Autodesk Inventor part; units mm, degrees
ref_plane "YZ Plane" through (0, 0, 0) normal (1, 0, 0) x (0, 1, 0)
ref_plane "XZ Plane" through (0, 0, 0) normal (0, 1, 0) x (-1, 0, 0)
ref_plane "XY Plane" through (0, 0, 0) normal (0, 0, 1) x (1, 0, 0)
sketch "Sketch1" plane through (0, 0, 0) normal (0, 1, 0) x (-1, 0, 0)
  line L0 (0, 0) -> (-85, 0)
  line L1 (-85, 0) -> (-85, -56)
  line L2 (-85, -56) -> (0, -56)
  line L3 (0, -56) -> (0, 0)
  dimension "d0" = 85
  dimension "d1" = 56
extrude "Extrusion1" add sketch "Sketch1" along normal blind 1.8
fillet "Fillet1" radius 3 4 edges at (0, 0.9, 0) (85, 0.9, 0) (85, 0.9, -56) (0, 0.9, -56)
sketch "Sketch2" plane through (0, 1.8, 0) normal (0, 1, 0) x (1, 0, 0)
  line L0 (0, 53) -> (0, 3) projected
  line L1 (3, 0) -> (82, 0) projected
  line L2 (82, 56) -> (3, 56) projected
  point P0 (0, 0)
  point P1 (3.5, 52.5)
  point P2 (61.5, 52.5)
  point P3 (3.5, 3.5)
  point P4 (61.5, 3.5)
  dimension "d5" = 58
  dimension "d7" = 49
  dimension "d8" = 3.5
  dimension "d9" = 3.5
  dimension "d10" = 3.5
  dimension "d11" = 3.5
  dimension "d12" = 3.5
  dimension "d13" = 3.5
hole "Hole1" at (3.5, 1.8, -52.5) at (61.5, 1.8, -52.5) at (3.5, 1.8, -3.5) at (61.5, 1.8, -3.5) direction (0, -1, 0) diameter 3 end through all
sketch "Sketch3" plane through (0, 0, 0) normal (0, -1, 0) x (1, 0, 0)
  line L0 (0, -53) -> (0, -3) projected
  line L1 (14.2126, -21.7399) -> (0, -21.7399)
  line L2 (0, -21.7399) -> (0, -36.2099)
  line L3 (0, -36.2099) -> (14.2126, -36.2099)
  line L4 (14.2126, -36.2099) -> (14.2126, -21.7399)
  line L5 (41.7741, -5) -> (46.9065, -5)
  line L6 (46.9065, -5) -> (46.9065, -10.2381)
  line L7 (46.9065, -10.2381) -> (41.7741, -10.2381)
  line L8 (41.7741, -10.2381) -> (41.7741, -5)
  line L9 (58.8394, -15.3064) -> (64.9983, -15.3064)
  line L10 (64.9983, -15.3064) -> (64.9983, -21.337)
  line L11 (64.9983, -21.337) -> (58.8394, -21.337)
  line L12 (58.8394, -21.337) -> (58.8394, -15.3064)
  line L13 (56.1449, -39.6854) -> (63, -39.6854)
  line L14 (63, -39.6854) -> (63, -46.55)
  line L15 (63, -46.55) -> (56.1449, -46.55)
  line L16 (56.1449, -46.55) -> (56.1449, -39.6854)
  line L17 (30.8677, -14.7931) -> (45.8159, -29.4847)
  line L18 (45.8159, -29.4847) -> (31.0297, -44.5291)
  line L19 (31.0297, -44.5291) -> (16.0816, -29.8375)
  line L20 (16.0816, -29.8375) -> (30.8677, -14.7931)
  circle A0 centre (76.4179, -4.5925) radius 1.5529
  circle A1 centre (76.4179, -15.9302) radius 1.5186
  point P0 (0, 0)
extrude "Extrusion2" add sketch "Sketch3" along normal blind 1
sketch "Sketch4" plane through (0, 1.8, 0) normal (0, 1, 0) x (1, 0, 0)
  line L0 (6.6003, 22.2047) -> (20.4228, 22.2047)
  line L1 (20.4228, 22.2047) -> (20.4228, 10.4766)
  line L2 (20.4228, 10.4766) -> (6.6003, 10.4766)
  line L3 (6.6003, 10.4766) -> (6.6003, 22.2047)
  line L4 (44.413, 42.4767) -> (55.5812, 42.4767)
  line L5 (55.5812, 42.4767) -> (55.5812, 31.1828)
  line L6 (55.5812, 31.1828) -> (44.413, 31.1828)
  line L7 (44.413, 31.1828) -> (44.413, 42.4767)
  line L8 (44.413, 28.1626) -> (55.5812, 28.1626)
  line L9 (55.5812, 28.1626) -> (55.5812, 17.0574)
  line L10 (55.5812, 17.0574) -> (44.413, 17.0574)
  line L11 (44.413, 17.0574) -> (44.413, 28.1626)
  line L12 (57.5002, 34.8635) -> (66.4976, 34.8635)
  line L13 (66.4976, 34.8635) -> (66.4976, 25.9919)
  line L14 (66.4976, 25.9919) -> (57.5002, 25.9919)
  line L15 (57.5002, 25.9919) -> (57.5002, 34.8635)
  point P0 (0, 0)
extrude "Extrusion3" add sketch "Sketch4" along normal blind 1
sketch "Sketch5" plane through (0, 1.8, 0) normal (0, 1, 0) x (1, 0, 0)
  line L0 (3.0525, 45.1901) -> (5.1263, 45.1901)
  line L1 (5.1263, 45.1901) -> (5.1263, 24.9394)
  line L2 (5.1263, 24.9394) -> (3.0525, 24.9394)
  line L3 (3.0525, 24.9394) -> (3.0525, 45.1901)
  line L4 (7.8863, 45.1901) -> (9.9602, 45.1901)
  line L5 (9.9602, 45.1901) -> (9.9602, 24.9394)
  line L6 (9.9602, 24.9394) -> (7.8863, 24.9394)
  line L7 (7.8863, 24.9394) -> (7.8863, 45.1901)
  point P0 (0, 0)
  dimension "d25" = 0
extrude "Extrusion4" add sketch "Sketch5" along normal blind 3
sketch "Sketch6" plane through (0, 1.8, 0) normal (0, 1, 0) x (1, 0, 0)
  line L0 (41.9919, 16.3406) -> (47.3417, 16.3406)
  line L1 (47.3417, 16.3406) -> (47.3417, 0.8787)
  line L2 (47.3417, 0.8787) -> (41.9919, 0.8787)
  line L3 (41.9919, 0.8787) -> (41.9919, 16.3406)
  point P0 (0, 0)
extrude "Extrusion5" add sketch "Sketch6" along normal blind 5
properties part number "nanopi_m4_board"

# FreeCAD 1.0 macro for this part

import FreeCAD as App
import Part
import Sketcher

V = App.Vector


def edges_at(feature, points):
    """Names of the edges that pass closest to the given points."""
    edges = feature.Shape.Edges
    near = lambda p: min(range(len(edges)), key=lambda i: edges[i].distToShape(Part.Vertex(*p))[0])
    return sorted({f"Edge{near(p) + 1}" for p in points})

doc = App.newDocument("Part")
params = doc.addObject("Spreadsheet::Sheet", "Params")
for row, (alias, value) in enumerate([
    ("sketch1_width", "85 mm"),
    ("sketch1_height", "56 mm"),
    ("pad1_length", "1.8 mm"),
    ("fillet_radius", "3 mm"),
    ("sketch2_diameter", "3 mm"),
    ("hole_diameter", "3 mm"),
    ("sketch3_height", "14.47 mm"),
    ("pad2_length", "1 mm"),
    ("pad3_length", "1 mm"),
    ("pad4_length", "3 mm"),
    ("pad5_length", "5 mm"),
], start=1):
    params.set(f"A{row}", alias)
    params.set(f"B{row}", "=" + value)
    params.setAlias(f"B{row}", alias)

body = doc.addObject("PartDesign::Body", "Body")

# Sketch on XZ plane
sketch1 = doc.addObject("Sketcher::SketchObject", "Sketch")
body.addObject(sketch1)
sketch1.AttachmentSupport = (doc.XZ_Plane, [""])
sketch1.MapMode = "FlatFace"
sketch1.addGeometry(Part.LineSegment(V(0, -56, 0), V(0, 0, 0)), False)
sketch1.addGeometry(Part.LineSegment(V(0, 0, 0), V(85, 0, 0)), False)
sketch1.addGeometry(Part.LineSegment(V(85, 0, 0), V(85, -56, 0)), False)
sketch1.addGeometry(Part.LineSegment(V(85, -56, 0), V(0, -56, 0)), False)
sketch1.addConstraint(Sketcher.Constraint("Coincident", 0, 2, 1, 1))
sketch1.addConstraint(Sketcher.Constraint("Coincident", 1, 2, 2, 1))
sketch1.addConstraint(Sketcher.Constraint("Coincident", 2, 2, 3, 1))
sketch1.addConstraint(Sketcher.Constraint("Coincident", 3, 2, 0, 1))
sketch1.addConstraint(Sketcher.Constraint("Vertical", 0))
sketch1.addConstraint(Sketcher.Constraint("Horizontal", 1))
sketch1.addConstraint(Sketcher.Constraint("Vertical", 2))
sketch1.addConstraint(Sketcher.Constraint("Horizontal", 3))
sketch1.addConstraint(Sketcher.Constraint("Coincident", 0, 2, -1, 1))
sketch1.addConstraint(Sketcher.Constraint("DistanceX", 1, 1, 1, 2, 85.0))
sketch1.addConstraint(Sketcher.Constraint("DistanceY", 0, 1, 0, 2, 56.0))
sketch1.setExpression("Constraints[9]", "Params.sketch1_width")
sketch1.setExpression("Constraints[10]", "Params.sketch1_height")
pad1 = doc.addObject("PartDesign::Pad", "Pad")
body.addObject(pad1)
pad1.Profile = sketch1
pad1.setExpression("Length", "Params.pad1_length")
pad1.Reversed = True
doc.recompute()

fillet = doc.addObject("PartDesign::Fillet", "Fillet")
body.addObject(fillet)
fillet.Base = (pad1, edges_at(pad1, [
    (0, 0.9, 0),
    (85, 0.9, 0),
    (85, 0.9, -56),
    (0, 0.9, -56),
]))
fillet.setExpression("Radius", "Params.fillet_radius")

# Sketch on XZ plane
sketch2 = doc.addObject("Sketcher::SketchObject", "Sketch001")
body.addObject(sketch2)
sketch2.AttachmentSupport = (doc.XZ_Plane, [""])
sketch2.MapMode = "FlatFace"
sketch2.AttachmentOffset = App.Placement(V(0, 0, -1.8), App.Rotation())
sketch2.addGeometry(Part.Circle(V(3.5, -52.5, 0), V(0, 0, 1), 1.5), False)
sketch2.addGeometry(Part.Circle(V(61.5, -52.5, 0), V(0, 0, 1), 1.5), False)
sketch2.addGeometry(Part.Circle(V(3.5, -3.5, 0), V(0, 0, 1), 1.5), False)
sketch2.addGeometry(Part.Circle(V(61.5, -3.5, 0), V(0, 0, 1), 1.5), False)
sketch2.addConstraint(Sketcher.Constraint("Equal", 0, 1))
sketch2.addConstraint(Sketcher.Constraint("Equal", 1, 2))
sketch2.addConstraint(Sketcher.Constraint("Equal", 2, 3))
sketch2.addConstraint(Sketcher.Constraint("Horizontal", 0, 3, 1, 3))
sketch2.addConstraint(Sketcher.Constraint("Horizontal", 2, 3, 3, 3))
sketch2.addConstraint(Sketcher.Constraint("Vertical", 0, 3, 2, 3))
sketch2.addConstraint(Sketcher.Constraint("Vertical", 1, 3, 3, 3))
sketch2.addConstraint(Sketcher.Constraint("Diameter", 0, 3.0))
sketch2.addConstraint(Sketcher.Constraint("DistanceX", 0, 3, 1, 3, 58.0))
sketch2.addConstraint(Sketcher.Constraint("DistanceY", 0, 3, 2, 3, 49.0))
sketch2.addConstraint(Sketcher.Constraint("DistanceX", -1, 1, 0, 3, 3.5))
sketch2.addConstraint(Sketcher.Constraint("DistanceY", 0, 3, -1, 1, 52.5))
sketch2.setExpression("Constraints[7]", "Params.sketch2_diameter")
doc.recompute()
hole = doc.addObject("PartDesign::Hole", "Hole")
body.addObject(hole)
hole.Profile = sketch2
hole.ThreadType = "None"
hole.setExpression("Diameter", "Params.hole_diameter")
hole.DepthType = "ThroughAll"
hole.Reversed = True

# Sketch on XZ plane
sketch3 = doc.addObject("Sketcher::SketchObject", "Sketch002")
body.addObject(sketch3)
sketch3.AttachmentSupport = (doc.XZ_Plane, [""])
sketch3.MapMode = "FlatFace"
sketch3.addGeometry(Part.LineSegment(V(0, -21.7399, 0), V(0, -36.2099, 0)), False)
sketch3.addGeometry(Part.LineSegment(V(0, -36.2099, 0), V(14.2126, -36.2099, 0)), False)
sketch3.addGeometry(Part.LineSegment(V(14.2126, -36.2099, 0), V(14.2126, -21.7399, 0)), False)
sketch3.addGeometry(Part.LineSegment(V(14.2126, -21.7399, 0), V(0, -21.7399, 0)), False)
sketch3.addGeometry(Part.LineSegment(V(46.9065, -5, 0), V(41.7741, -5, 0)), False)
sketch3.addGeometry(Part.LineSegment(V(41.7741, -5, 0), V(41.7741, -10.2381, 0)), False)
sketch3.addGeometry(Part.LineSegment(V(41.7741, -10.2381, 0), V(46.9065, -10.2381, 0)), False)
sketch3.addGeometry(Part.LineSegment(V(46.9065, -10.2381, 0), V(46.9065, -5, 0)), False)
sketch3.addGeometry(Part.LineSegment(V(64.9983, -15.3064, 0), V(58.8394, -15.3064, 0)), False)
sketch3.addGeometry(Part.LineSegment(V(58.8394, -15.3064, 0), V(58.8394, -21.337, 0)), False)
sketch3.addGeometry(Part.LineSegment(V(58.8394, -21.337, 0), V(64.9983, -21.337, 0)), False)
sketch3.addGeometry(Part.LineSegment(V(64.9983, -21.337, 0), V(64.9983, -15.3064, 0)), False)
sketch3.addGeometry(Part.LineSegment(V(63, -39.6854, 0), V(56.1449, -39.6854, 0)), False)
sketch3.addGeometry(Part.LineSegment(V(56.1449, -39.6854, 0), V(56.1449, -46.55, 0)), False)
sketch3.addGeometry(Part.LineSegment(V(56.1449, -46.55, 0), V(63, -46.55, 0)), False)
sketch3.addGeometry(Part.LineSegment(V(63, -46.55, 0), V(63, -39.6854, 0)), False)
sketch3.addGeometry(Part.LineSegment(V(45.8159, -29.4847, 0), V(30.8677, -14.7931, 0)), False)
sketch3.addGeometry(Part.LineSegment(V(30.8677, -14.7931, 0), V(16.0816, -29.8375, 0)), False)
sketch3.addGeometry(Part.LineSegment(V(16.0816, -29.8375, 0), V(31.0297, -44.5291, 0)), False)
sketch3.addGeometry(Part.LineSegment(V(31.0297, -44.5291, 0), V(45.8159, -29.4847, 0)), False)
sketch3.addGeometry(Part.Circle(V(76.4179, -4.5925, 0), V(0, 0, 1), 1.5529), False)
sketch3.addGeometry(Part.Circle(V(76.4179, -15.9302, 0), V(0, 0, 1), 1.5186), False)
sketch3.addConstraint(Sketcher.Constraint("Coincident", 0, 2, 1, 1))
sketch3.addConstraint(Sketcher.Constraint("Coincident", 1, 2, 2, 1))
sketch3.addConstraint(Sketcher.Constraint("Coincident", 2, 2, 3, 1))
sketch3.addConstraint(Sketcher.Constraint("Coincident", 3, 2, 0, 1))
sketch3.addConstraint(Sketcher.Constraint("Coincident", 4, 2, 5, 1))
sketch3.addConstraint(Sketcher.Constraint("Coincident", 5, 2, 6, 1))
sketch3.addConstraint(Sketcher.Constraint("Coincident", 6, 2, 7, 1))
sketch3.addConstraint(Sketcher.Constraint("Coincident", 7, 2, 4, 1))
sketch3.addConstraint(Sketcher.Constraint("Coincident", 8, 2, 9, 1))
sketch3.addConstraint(Sketcher.Constraint("Coincident", 9, 2, 10, 1))
sketch3.addConstraint(Sketcher.Constraint("Coincident", 10, 2, 11, 1))
sketch3.addConstraint(Sketcher.Constraint("Coincident", 11, 2, 8, 1))
sketch3.addConstraint(Sketcher.Constraint("Coincident", 12, 2, 13, 1))
sketch3.addConstraint(Sketcher.Constraint("Coincident", 13, 2, 14, 1))
sketch3.addConstraint(Sketcher.Constraint("Coincident", 14, 2, 15, 1))
sketch3.addConstraint(Sketcher.Constraint("Coincident", 15, 2, 12, 1))
sketch3.addConstraint(Sketcher.Constraint("Coincident", 16, 2, 17, 1))
sketch3.addConstraint(Sketcher.Constraint("Coincident", 17, 2, 18, 1))
sketch3.addConstraint(Sketcher.Constraint("Coincident", 18, 2, 19, 1))
sketch3.addConstraint(Sketcher.Constraint("Coincident", 19, 2, 16, 1))
sketch3.addConstraint(Sketcher.Constraint("Vertical", 0))
sketch3.addConstraint(Sketcher.Constraint("Horizontal", 1))
sketch3.addConstraint(Sketcher.Constraint("Vertical", 2))
sketch3.addConstraint(Sketcher.Constraint("Horizontal", 3))
sketch3.addConstraint(Sketcher.Constraint("Horizontal", 4))
sketch3.addConstraint(Sketcher.Constraint("Vertical", 5))
sketch3.addConstraint(Sketcher.Constraint("Horizontal", 6))
sketch3.addConstraint(Sketcher.Constraint("Vertical", 7))
sketch3.addConstraint(Sketcher.Constraint("Horizontal", 8))
sketch3.addConstraint(Sketcher.Constraint("Vertical", 9))
sketch3.addConstraint(Sketcher.Constraint("Horizontal", 10))
sketch3.addConstraint(Sketcher.Constraint("Vertical", 11))
sketch3.addConstraint(Sketcher.Constraint("Horizontal", 12))
sketch3.addConstraint(Sketcher.Constraint("Vertical", 13))
sketch3.addConstraint(Sketcher.Constraint("Horizontal", 14))
sketch3.addConstraint(Sketcher.Constraint("Vertical", 15))
sketch3.addConstraint(Sketcher.Constraint("PointOnObject", 0, 2, -2))
sketch3.addConstraint(Sketcher.Constraint("DistanceY", 4, 2, -1, 1, 5.0))
sketch3.addConstraint(Sketcher.Constraint("DistanceX", -1, 1, 14, 2, 63.0))
sketch3.addConstraint(Sketcher.Constraint("Diameter", 20, 3.1058))
sketch3.addConstraint(Sketcher.Constraint("Diameter", 21, 3.0372))
sketch3.addConstraint(Sketcher.Constraint("DistanceY", 0, 2, 0, 1, 14.47))
sketch3.addConstraint(Sketcher.Constraint("DistanceX", 8, 2, 8, 1, 6.159))
sketch3.addConstraint(Sketcher.Constraint("DistanceX", 12, 2, 12, 1, 6.855))
sketch3.addConstraint(Sketcher.Constraint("DistanceY", 5, 2, 5, 1, 5.238))
sketch3.addConstraint(Sketcher.Constraint("DistanceY", 0, 2, -1, 1, 36.21))
sketch3.addConstraint(Sketcher.Constraint("DistanceY", 13, 2, -1, 1, 46.55))
sketch3.addConstraint(Sketcher.Constraint("DistanceX", 1, 1, 1, 2, 14.2126))
sketch3.addConstraint(Sketcher.Constraint("DistanceX", 4, 2, 4, 1, 5.1324))
sketch3.addConstraint(Sketcher.Constraint("DistanceY", 9, 2, 9, 1, 6.0306))
sketch3.addConstraint(Sketcher.Constraint("DistanceY", 13, 2, 13, 1, 6.8646))
sketch3.addConstraint(Sketcher.Constraint("DistanceX", -1, 1, 20, 3, 76.418))
sketch3.addConstraint(Sketcher.Constraint("DistanceX", -1, 1, 21, 3, 76.418))
sketch3.addConstraint(Sketcher.Constraint("DistanceX", -1, 1, 4, 2, 41.774))
sketch3.addConstraint(Sketcher.Constraint("DistanceY", 9, 2, -1, 1, 21.337))
sketch3.addConstraint(Sketcher.Constraint("DistanceY", 16, 2, -1, 1, 14.793))
sketch3.addConstraint(Sketcher.Constraint("DistanceY", 18, 2, -1, 1, 44.529))
sketch3.addConstraint(Sketcher.Constraint("DistanceX", -1, 1, 19, 2, 45.816))
sketch3.addConstraint(Sketcher.Constraint("DistanceY", 21, 3, 5, 2, 5.692))
sketch3.addConstraint(Sketcher.Constraint("DistanceX", 6, 2, 8, 2, 11.933))
sketch3.addConstraint(Sketcher.Constraint("DistanceY", 11, 2, 20, 3, 10.714))
sketch3.addConstraint(Sketcher.Constraint("DistanceX", 2, 2, 16, 2, 16.655))
sketch3.addConstraint(Sketcher.Constraint("DistanceX", 1, 2, 17, 2, 1.869))
sketch3.addConstraint(Sketcher.Constraint("DistanceX", 1, 2, 18, 2, 16.817))
sketch3.addConstraint(Sketcher.Constraint("Distance", 16, 20.9593))
sketch3.addConstraint(Sketcher.Constraint("Distance", 17, 21.0941))
sketch3.setExpression("Constraints[41]", "Params.sketch3_height")
pad2 = doc.addObject("PartDesign::Pad", "Pad001")
body.addObject(pad2)
pad2.Profile = sketch3
pad2.setExpression("Length", "Params.pad2_length")

# Sketch on XZ plane
sketch4 = doc.addObject("Sketcher::SketchObject", "Sketch003")
body.addObject(sketch4)
sketch4.AttachmentSupport = (doc.XZ_Plane, [""])
sketch4.MapMode = "FlatFace"
sketch4.AttachmentOffset = App.Placement(V(0, 0, -1.8), App.Rotation())
sketch4.addGeometry(Part.LineSegment(V(20, -22, 0), V(7, -22, 0)), False)
sketch4.addGeometry(Part.LineSegment(V(7, -22, 0), V(7, -10, 0)), False)
sketch4.addGeometry(Part.LineSegment(V(7, -10, 0), V(20, -10, 0)), False)
sketch4.addGeometry(Part.LineSegment(V(20, -10, 0), V(20, -22, 0)), False)
sketch4.addGeometry(Part.LineSegment(V(56, -42, 0), V(44, -42, 0)), False)
sketch4.addGeometry(Part.LineSegment(V(44, -42, 0), V(44, -31, 0)), False)
sketch4.addGeometry(Part.LineSegment(V(44, -31, 0), V(56, -31, 0)), False)
sketch4.addGeometry(Part.LineSegment(V(56, -31, 0), V(56, -42, 0)), False)
sketch4.addGeometry(Part.LineSegment(V(56, -28, 0), V(44, -28, 0)), False)
sketch4.addGeometry(Part.LineSegment(V(44, -28, 0), V(44, -17, 0)), False)
sketch4.addGeometry(Part.LineSegment(V(44, -17, 0), V(56, -17, 0)), False)
sketch4.addGeometry(Part.LineSegment(V(56, -17, 0), V(56, -28, 0)), False)
sketch4.addGeometry(Part.LineSegment(V(66, -35, 0), V(58, -35, 0)), False)
sketch4.addGeometry(Part.LineSegment(V(58, -35, 0), V(58, -26, 0)), False)
sketch4.addGeometry(Part.LineSegment(V(58, -26, 0), V(66, -26, 0)), False)
sketch4.addGeometry(Part.LineSegment(V(66, -26, 0), V(66, -35, 0)), False)
sketch4.addConstraint(Sketcher.Constraint("Coincident", 0, 2, 1, 1))
sketch4.addConstraint(Sketcher.Constraint("Coincident", 1, 2, 2, 1))
sketch4.addConstraint(Sketcher.Constraint("Coincident", 2, 2, 3, 1))
sketch4.addConstraint(Sketcher.Constraint("Coincident", 3, 2, 0, 1))
sketch4.addConstraint(Sketcher.Constraint("Coincident", 4, 2, 5, 1))
sketch4.addConstraint(Sketcher.Constraint("Coincident", 5, 2, 6, 1))
sketch4.addConstraint(Sketcher.Constraint("Coincident", 6, 2, 7, 1))
sketch4.addConstraint(Sketcher.Constraint("Coincident", 7, 2, 4, 1))
sketch4.addConstraint(Sketcher.Constraint("Coincident", 8, 2, 9, 1))
sketch4.addConstraint(Sketcher.Constraint("Coincident", 9, 2, 10, 1))
sketch4.addConstraint(Sketcher.Constraint("Coincident", 10, 2, 11, 1))
sketch4.addConstraint(Sketcher.Constraint("Coincident", 11, 2, 8, 1))
sketch4.addConstraint(Sketcher.Constraint("Coincident", 12, 2, 13, 1))
sketch4.addConstraint(Sketcher.Constraint("Coincident", 13, 2, 14, 1))
sketch4.addConstraint(Sketcher.Constraint("Coincident", 14, 2, 15, 1))
sketch4.addConstraint(Sketcher.Constraint("Coincident", 15, 2, 12, 1))
sketch4.addConstraint(Sketcher.Constraint("Horizontal", 0))
sketch4.addConstraint(Sketcher.Constraint("Vertical", 1))
sketch4.addConstraint(Sketcher.Constraint("Horizontal", 2))
sketch4.addConstraint(Sketcher.Constraint("Vertical", 3))
sketch4.addConstraint(Sketcher.Constraint("Horizontal", 4))
sketch4.addConstraint(Sketcher.Constraint("Vertical", 5))
sketch4.addConstraint(Sketcher.Constraint("Horizontal", 6))
sketch4.addConstraint(Sketcher.Constraint("Vertical", 7))
sketch4.addConstraint(Sketcher.Constraint("Horizontal", 8))
sketch4.addConstraint(Sketcher.Constraint("Vertical", 9))
sketch4.addConstraint(Sketcher.Constraint("Horizontal", 10))
sketch4.addConstraint(Sketcher.Constraint("Vertical", 11))
sketch4.addConstraint(Sketcher.Constraint("Horizontal", 12))
sketch4.addConstraint(Sketcher.Constraint("Vertical", 13))
sketch4.addConstraint(Sketcher.Constraint("Horizontal", 14))
sketch4.addConstraint(Sketcher.Constraint("Vertical", 15))
sketch4.addConstraint(Sketcher.Constraint("Vertical", 5, 2, 8, 2))
sketch4.addConstraint(Sketcher.Constraint("Vertical", 7, 2, 10, 2))
sketch4.addConstraint(Sketcher.Constraint("DistanceY", 4, 2, 2, 2, 32.0))
sketch4.addConstraint(Sketcher.Constraint("DistanceY", 1, 1, 1, 2, 11.728))
sketch4.addConstraint(Sketcher.Constraint("DistanceY", 5, 1, 5, 2, 11.294))
sketch4.addConstraint(Sketcher.Constraint("DistanceX", 0, 2, 0, 1, 13.8225))
sketch4.addConstraint(Sketcher.Constraint("DistanceX", 4, 2, 4, 1, 11.1682))
sketch4.addConstraint(Sketcher.Constraint("DistanceX", 12, 2, 12, 1, 8.9974))
sketch4.addConstraint(Sketcher.Constraint("DistanceY", 9, 1, 9, 2, 11.1052))
sketch4.addConstraint(Sketcher.Constraint("DistanceY", 13, 1, 13, 2, 8.8716))
sketch4.addConstraint(Sketcher.Constraint("DistanceX", -1, 1, 4, 2, 44.413))
sketch4.addConstraint(Sketcher.Constraint("DistanceY", 13, 2, -1, 1, 25.992))
sketch4.addConstraint(Sketcher.Constraint("DistanceX", 0, 2, 6, 2, 48.981))
sketch4.addConstraint(Sketcher.Constraint("DistanceY", 4, 2, 8, 2, 14.314))
sketch4.addConstraint(Sketcher.Constraint("DistanceX", 6, 2, 12, 2, 1.919))
sketch4.addConstraint(Sketcher.Constraint("DistanceY", 12, 2, 11, 2, 6.701))
pad3 = doc.addObject("PartDesign::Pad", "Pad002")
body.addObject(pad3)
pad3.Profile = sketch4
pad3.setExpression("Length", "Params.pad3_length")
pad3.Reversed = True

# Sketch on XZ plane
sketch5 = doc.addObject("Sketcher::SketchObject", "Sketch004")
body.addObject(sketch5)
sketch5.AttachmentSupport = (doc.XZ_Plane, [""])
sketch5.MapMode = "FlatFace"
sketch5.AttachmentOffset = App.Placement(V(0, 0, -1.8), App.Rotation())
sketch5.addGeometry(Part.LineSegment(V(5.1, -45.2, 0), V(3.1, -45.2, 0)), False)
sketch5.addGeometry(Part.LineSegment(V(3.1, -45.2, 0), V(3.1, -24.9, 0)), False)
sketch5.addGeometry(Part.LineSegment(V(3.1, -24.9, 0), V(5.1, -24.9, 0)), False)
sketch5.addGeometry(Part.LineSegment(V(5.1, -24.9, 0), V(5.1, -45.2, 0)), False)
sketch5.addGeometry(Part.LineSegment(V(10, -45.2, 0), V(7.9, -45.2, 0)), False)
sketch5.addGeometry(Part.LineSegment(V(7.9, -45.2, 0), V(7.9, -24.9, 0)), False)
sketch5.addGeometry(Part.LineSegment(V(7.9, -24.9, 0), V(10, -24.9, 0)), False)
sketch5.addGeometry(Part.LineSegment(V(10, -24.9, 0), V(10, -45.2, 0)), False)
sketch5.addConstraint(Sketcher.Constraint("Coincident", 0, 2, 1, 1))
sketch5.addConstraint(Sketcher.Constraint("Coincident", 1, 2, 2, 1))
sketch5.addConstraint(Sketcher.Constraint("Coincident", 2, 2, 3, 1))
sketch5.addConstraint(Sketcher.Constraint("Coincident", 3, 2, 0, 1))
sketch5.addConstraint(Sketcher.Constraint("Coincident", 4, 2, 5, 1))
sketch5.addConstraint(Sketcher.Constraint("Coincident", 5, 2, 6, 1))
sketch5.addConstraint(Sketcher.Constraint("Coincident", 6, 2, 7, 1))
sketch5.addConstraint(Sketcher.Constraint("Coincident", 7, 2, 4, 1))
sketch5.addConstraint(Sketcher.Constraint("Horizontal", 0))
sketch5.addConstraint(Sketcher.Constraint("Vertical", 1))
sketch5.addConstraint(Sketcher.Constraint("Horizontal", 2))
sketch5.addConstraint(Sketcher.Constraint("Vertical", 3))
sketch5.addConstraint(Sketcher.Constraint("Horizontal", 4))
sketch5.addConstraint(Sketcher.Constraint("Vertical", 5))
sketch5.addConstraint(Sketcher.Constraint("Horizontal", 6))
sketch5.addConstraint(Sketcher.Constraint("Vertical", 7))
sketch5.addConstraint(Sketcher.Constraint("Horizontal", 3, 2, 4, 2))
sketch5.addConstraint(Sketcher.Constraint("Horizontal", 2, 2, 5, 2))
sketch5.addConstraint(Sketcher.Constraint("Equal", 2, 4))
sketch5.addConstraint(Sketcher.Constraint("DistanceX", 4, 2, 4, 1, 2.074))
sketch5.addConstraint(Sketcher.Constraint("DistanceY", 0, 2, -1, 1, 45.19))
sketch5.addConstraint(Sketcher.Constraint("DistanceX", 3, 2, 4, 2, 2.76))
sketch5.addConstraint(Sketcher.Constraint("DistanceY", 1, 1, 1, 2, 20.2507))
sketch5.addConstraint(Sketcher.Constraint("DistanceX", -1, 1, 0, 2, 3.0525))
pad4 = doc.addObject("PartDesign::Pad", "Pad003")
body.addObject(pad4)
pad4.Profile = sketch5
pad4.setExpression("Length", "Params.pad4_length")
pad4.Reversed = True

# Sketch on XZ plane
sketch6 = doc.addObject("Sketcher::SketchObject", "Sketch005")
body.addObject(sketch6)
sketch6.AttachmentSupport = (doc.XZ_Plane, [""])
sketch6.MapMode = "FlatFace"
sketch6.AttachmentOffset = App.Placement(V(0, 0, -1.8), App.Rotation())
sketch6.addGeometry(Part.LineSegment(V(47, -16, 0), V(42, -16, 0)), False)
sketch6.addGeometry(Part.LineSegment(V(42, -16, 0), V(42, -1, 0)), False)
sketch6.addGeometry(Part.LineSegment(V(42, -1, 0), V(47, -1, 0)), False)
sketch6.addGeometry(Part.LineSegment(V(47, -1, 0), V(47, -16, 0)), False)
sketch6.addConstraint(Sketcher.Constraint("Coincident", 0, 2, 1, 1))
sketch6.addConstraint(Sketcher.Constraint("Coincident", 1, 2, 2, 1))
sketch6.addConstraint(Sketcher.Constraint("Coincident", 2, 2, 3, 1))
sketch6.addConstraint(Sketcher.Constraint("Coincident", 3, 2, 0, 1))
sketch6.addConstraint(Sketcher.Constraint("Horizontal", 0))
sketch6.addConstraint(Sketcher.Constraint("Vertical", 1))
sketch6.addConstraint(Sketcher.Constraint("Horizontal", 2))
sketch6.addConstraint(Sketcher.Constraint("Vertical", 3))
sketch6.addConstraint(Sketcher.Constraint("DistanceY", 1, 1, 1, 2, 15.462))
sketch6.addConstraint(Sketcher.Constraint("DistanceX", 0, 2, 0, 1, 5.3498))
sketch6.addConstraint(Sketcher.Constraint("DistanceX", -1, 1, 0, 2, 41.992))
sketch6.addConstraint(Sketcher.Constraint("DistanceY", 0, 2, -1, 1, 16.3406))
pad5 = doc.addObject("PartDesign::Pad", "Pad004")
body.addObject(pad5)
pad5.Profile = sketch6
pad5.setExpression("Length", "Params.pad5_length")
pad5.Reversed = True

doc.recompute()
